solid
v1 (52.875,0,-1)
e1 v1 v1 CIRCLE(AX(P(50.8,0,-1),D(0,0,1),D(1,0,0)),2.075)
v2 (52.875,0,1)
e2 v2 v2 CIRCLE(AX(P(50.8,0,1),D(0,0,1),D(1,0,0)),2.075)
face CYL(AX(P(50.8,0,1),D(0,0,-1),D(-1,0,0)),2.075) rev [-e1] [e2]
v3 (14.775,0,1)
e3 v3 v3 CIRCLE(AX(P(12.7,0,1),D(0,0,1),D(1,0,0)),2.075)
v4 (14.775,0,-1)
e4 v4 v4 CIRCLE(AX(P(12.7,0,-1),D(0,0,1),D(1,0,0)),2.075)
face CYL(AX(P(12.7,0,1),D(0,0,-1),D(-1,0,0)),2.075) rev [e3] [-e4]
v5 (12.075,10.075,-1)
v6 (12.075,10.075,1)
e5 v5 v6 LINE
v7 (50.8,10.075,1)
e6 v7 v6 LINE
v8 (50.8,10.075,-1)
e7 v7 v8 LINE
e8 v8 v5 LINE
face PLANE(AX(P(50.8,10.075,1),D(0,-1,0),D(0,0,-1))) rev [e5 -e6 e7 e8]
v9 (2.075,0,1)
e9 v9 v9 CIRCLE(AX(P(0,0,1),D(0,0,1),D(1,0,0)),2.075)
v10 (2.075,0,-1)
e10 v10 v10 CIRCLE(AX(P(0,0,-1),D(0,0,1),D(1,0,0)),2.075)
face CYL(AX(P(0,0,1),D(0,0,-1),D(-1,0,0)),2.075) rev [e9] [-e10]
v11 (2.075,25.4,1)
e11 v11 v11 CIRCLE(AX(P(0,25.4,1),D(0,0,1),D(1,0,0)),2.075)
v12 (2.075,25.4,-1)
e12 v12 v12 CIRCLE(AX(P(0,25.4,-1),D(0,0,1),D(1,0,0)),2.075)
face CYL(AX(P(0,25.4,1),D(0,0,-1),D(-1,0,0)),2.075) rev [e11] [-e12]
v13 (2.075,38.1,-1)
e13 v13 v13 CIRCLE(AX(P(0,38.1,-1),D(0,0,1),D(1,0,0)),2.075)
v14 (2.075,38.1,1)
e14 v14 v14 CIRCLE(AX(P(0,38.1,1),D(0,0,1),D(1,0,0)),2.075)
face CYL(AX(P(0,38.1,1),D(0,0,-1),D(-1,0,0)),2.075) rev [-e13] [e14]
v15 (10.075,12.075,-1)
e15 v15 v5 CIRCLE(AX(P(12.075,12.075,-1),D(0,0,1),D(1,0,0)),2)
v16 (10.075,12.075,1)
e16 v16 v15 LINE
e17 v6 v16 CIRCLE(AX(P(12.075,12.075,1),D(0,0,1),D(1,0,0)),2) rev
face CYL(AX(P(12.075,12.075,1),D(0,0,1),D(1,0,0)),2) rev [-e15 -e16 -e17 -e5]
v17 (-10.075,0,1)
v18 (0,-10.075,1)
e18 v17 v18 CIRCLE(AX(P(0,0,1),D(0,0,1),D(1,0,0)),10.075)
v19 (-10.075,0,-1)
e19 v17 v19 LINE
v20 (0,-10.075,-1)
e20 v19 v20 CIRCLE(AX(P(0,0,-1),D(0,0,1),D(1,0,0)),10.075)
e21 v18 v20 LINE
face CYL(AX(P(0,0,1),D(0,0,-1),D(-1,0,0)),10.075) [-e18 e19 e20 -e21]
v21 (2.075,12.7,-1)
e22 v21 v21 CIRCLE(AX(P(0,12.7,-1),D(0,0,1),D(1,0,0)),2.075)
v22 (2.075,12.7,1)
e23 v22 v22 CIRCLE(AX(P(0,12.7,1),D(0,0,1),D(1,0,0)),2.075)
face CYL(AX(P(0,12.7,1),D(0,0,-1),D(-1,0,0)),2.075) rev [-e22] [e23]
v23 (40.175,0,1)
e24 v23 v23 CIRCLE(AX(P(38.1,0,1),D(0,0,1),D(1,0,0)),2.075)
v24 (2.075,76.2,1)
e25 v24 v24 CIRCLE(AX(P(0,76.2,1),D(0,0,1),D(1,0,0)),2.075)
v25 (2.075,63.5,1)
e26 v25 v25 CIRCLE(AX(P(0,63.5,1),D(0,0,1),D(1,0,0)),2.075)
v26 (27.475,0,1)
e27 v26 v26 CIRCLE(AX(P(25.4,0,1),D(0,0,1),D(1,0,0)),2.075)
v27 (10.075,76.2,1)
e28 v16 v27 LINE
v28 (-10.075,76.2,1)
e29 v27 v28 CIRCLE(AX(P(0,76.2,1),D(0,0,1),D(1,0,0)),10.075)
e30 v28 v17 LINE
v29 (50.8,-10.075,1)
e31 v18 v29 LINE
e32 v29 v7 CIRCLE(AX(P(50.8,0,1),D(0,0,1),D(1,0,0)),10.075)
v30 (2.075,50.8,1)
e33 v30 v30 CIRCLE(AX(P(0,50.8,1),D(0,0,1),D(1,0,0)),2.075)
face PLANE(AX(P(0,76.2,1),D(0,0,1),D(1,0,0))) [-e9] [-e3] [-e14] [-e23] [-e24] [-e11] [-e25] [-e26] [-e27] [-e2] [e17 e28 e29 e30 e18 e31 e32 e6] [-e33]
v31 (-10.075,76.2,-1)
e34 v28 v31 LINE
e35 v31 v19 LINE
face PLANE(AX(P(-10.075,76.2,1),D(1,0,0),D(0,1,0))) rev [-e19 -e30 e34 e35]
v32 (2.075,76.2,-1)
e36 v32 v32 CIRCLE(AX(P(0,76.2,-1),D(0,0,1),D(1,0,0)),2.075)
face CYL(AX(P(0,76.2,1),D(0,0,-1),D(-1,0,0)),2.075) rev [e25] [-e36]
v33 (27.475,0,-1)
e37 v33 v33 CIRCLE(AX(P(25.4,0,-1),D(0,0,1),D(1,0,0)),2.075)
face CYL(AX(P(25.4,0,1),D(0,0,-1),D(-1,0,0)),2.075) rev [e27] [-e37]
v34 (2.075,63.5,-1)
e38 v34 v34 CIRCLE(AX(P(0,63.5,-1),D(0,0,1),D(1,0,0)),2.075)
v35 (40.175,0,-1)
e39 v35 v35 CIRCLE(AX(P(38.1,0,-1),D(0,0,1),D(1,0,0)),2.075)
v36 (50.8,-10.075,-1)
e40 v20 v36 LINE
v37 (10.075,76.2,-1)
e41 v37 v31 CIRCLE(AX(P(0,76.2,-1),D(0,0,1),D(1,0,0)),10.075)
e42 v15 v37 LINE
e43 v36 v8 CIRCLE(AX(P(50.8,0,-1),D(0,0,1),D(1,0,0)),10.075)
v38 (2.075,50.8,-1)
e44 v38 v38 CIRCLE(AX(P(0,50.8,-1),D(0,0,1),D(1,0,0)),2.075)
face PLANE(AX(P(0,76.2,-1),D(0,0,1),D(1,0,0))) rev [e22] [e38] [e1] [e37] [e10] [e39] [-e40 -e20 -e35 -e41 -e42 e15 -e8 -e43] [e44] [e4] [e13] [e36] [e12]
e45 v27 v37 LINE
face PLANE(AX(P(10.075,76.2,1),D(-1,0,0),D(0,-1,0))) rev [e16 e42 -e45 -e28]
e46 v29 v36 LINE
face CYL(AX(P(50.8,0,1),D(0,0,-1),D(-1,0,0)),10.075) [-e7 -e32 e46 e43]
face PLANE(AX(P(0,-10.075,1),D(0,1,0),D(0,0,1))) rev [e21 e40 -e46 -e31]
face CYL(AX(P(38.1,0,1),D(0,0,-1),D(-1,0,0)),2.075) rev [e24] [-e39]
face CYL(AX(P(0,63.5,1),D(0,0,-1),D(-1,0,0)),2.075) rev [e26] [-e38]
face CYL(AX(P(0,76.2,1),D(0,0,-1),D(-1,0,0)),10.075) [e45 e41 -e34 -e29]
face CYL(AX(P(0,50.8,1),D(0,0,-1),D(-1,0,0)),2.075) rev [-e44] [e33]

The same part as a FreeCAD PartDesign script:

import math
import FreeCAD as App
import Part
import Sketcher
from FreeCAD import Vector


def edges_at(feature, points):
    """Names of the edges that pass closest to the given points."""
    edges = feature.Shape.Edges
    near = lambda p: min(range(len(edges)), key=lambda i: edges[i].distToShape(Part.Vertex(*p))[0])
    return sorted({f"Edge{near(p) + 1}" for p in points})

doc = App.newDocument("Part")
body = doc.addObject("PartDesign::Body", "Body")

# Sketch on XY plane
sketch1 = doc.addObject("Sketcher::SketchObject", "Sketch")
body.addObject(sketch1)
sketch1.AttachmentSupport = (doc.XY_Plane, [""])
sketch1.MapMode = "FlatFace"
sketch1.addGeometry(Part.LineSegment(Vector(-10.1, 76.2, 0), Vector(-10.1, 0, 0)), False)
sketch1.addGeometry(Part.ArcOfCircle(Part.Circle(Vector(0, 0, 0), Vector(0, 0, 1), 10.1), math.radians(-180), math.radians(-90)), False)
sketch1.addGeometry(Part.LineSegment(Vector(0, -10.1, 0), Vector(50.8, -10.1, 0)), False)
sketch1.addGeometry(Part.ArcOfCircle(Part.Circle(Vector(50.8, 0, 0), Vector(0, 0, 1), 10.1), math.radians(-90), math.radians(90)), False)
sketch1.addGeometry(Part.LineSegment(Vector(50.8, 10.1, 0), Vector(10.1, 10.1, 0)), False)
sketch1.addGeometry(Part.LineSegment(Vector(10.1, 10.1, 0), Vector(10.1, 76.2, 0)), False)
sketch1.addGeometry(Part.ArcOfCircle(Part.Circle(Vector(0, 76.2, 0), Vector(0, 0, 1), 10.1), math.radians(0), math.radians(180)), False)
sketch1.addGeometry(Part.Circle(Vector(0, 0, 0), Vector(0, 0, 1), 2.1), False)
sketch1.addGeometry(Part.Circle(Vector(0, 12.7, 0), Vector(0, 0, 1), 2.1), False)
sketch1.addGeometry(Part.Circle(Vector(12.7, 0, 0), Vector(0, 0, 1), 2.1), False)
sketch1.addGeometry(Part.Circle(Vector(0, 25.4, 0), Vector(0, 0, 1), 2.1), False)
sketch1.addGeometry(Part.Circle(Vector(25.4, 0, 0), Vector(0, 0, 1), 2.1), False)
sketch1.addGeometry(Part.Circle(Vector(38.1, 0, 0), Vector(0, 0, 1), 2.1), False)
sketch1.addGeometry(Part.Circle(Vector(50.8, 0, 0), Vector(0, 0, 1), 2.1), False)
sketch1.addGeometry(Part.Circle(Vector(0, 38.1, 0), Vector(0, 0, 1), 2.1), False)
sketch1.addGeometry(Part.Circle(Vector(0, 50.8, 0), Vector(0, 0, 1), 2.1), False)
sketch1.addGeometry(Part.Circle(Vector(0, 63.5, 0), Vector(0, 0, 1), 2.1), False)
sketch1.addGeometry(Part.Circle(Vector(0, 76.2, 0), Vector(0, 0, 1), 2.1), False)
sketch1.addConstraint(Sketcher.Constraint("Tangent", 0, 2, 1, 1))
sketch1.addConstraint(Sketcher.Constraint("Tangent", 1, 2, 2, 1))
sketch1.addConstraint(Sketcher.Constraint("Tangent", 2, 2, 3, 1))
sketch1.addConstraint(Sketcher.Constraint("Tangent", 3, 2, 4, 1))
sketch1.addConstraint(Sketcher.Constraint("Coincident", 4, 2, 5, 1))
sketch1.addConstraint(Sketcher.Constraint("Tangent", 5, 2, 6, 1))
sketch1.addConstraint(Sketcher.Constraint("Tangent", 6, 2, 0, 1))
sketch1.addConstraint(Sketcher.Constraint("Vertical", 0))
sketch1.addConstraint(Sketcher.Constraint("Horizontal", 2))
sketch1.addConstraint(Sketcher.Constraint("Horizontal", 4))
sketch1.addConstraint(Sketcher.Constraint("Vertical", 5))
sketch1.addConstraint(Sketcher.Constraint("Coincident", 1, 3, -1, 1))
sketch1.addConstraint(Sketcher.Constraint("Coincident", 7, 3, -1, 1))
sketch1.addConstraint(Sketcher.Constraint("Coincident", 13, 3, 3, 3))
sketch1.addConstraint(Sketcher.Constraint("Coincident", 17, 3, 6, 3))
sketch1.addConstraint(Sketcher.Constraint("Equal", 1, 3))
sketch1.addConstraint(Sketcher.Constraint("Equal", 3, 6))
sketch1.addConstraint(Sketcher.Constraint("Equal", 7, 8))
sketch1.addConstraint(Sketcher.Constraint("Equal", 8, 9))
sketch1.addConstraint(Sketcher.Constraint("Equal", 9, 10))
sketch1.addConstraint(Sketcher.Constraint("Equal", 10, 11))
sketch1.addConstraint(Sketcher.Constraint("Equal", 11, 12))
sketch1.addConstraint(Sketcher.Constraint("Equal", 12, 13))
sketch1.addConstraint(Sketcher.Constraint("Equal", 13, 14))
sketch1.addConstraint(Sketcher.Constraint("Equal", 14, 15))
sketch1.addConstraint(Sketcher.Constraint("Equal", 15, 16))
sketch1.addConstraint(Sketcher.Constraint("Equal", 16, 17))
sketch1.addConstraint(Sketcher.Constraint("PointOnObject", 8, 3, -2))
sketch1.addConstraint(Sketcher.Constraint("PointOnObject", 9, 3, -1))
sketch1.addConstraint(Sketcher.Constraint("PointOnObject", 10, 3, -2))
sketch1.addConstraint(Sketcher.Constraint("PointOnObject", 11, 3, -1))
sketch1.addConstraint(Sketcher.Constraint("PointOnObject", 12, 3, -1))
sketch1.addConstraint(Sketcher.Constraint("PointOnObject", 14, 3, -2))
sketch1.addConstraint(Sketcher.Constraint("PointOnObject", 15, 3, -2))
sketch1.addConstraint(Sketcher.Constraint("PointOnObject", 16, 3, -2))
sketch1.addConstraint(Sketcher.Constraint("Diameter", 7, 4.15))
sketch1.addConstraint(Sketcher.Constraint("DistanceX", 2, 1, 2, 2, 50.8))
sketch1.addConstraint(Sketcher.Constraint("DistanceY", 0, 2, 0, 1, 76.2))
sketch1.addConstraint(Sketcher.Constraint("Radius", 1, 10.075))
sketch1.addConstraint(Sketcher.Constraint("DistanceY", -1, 1, 8, 3, 12.7))
sketch1.addConstraint(Sketcher.Constraint("DistanceX", -1, 1, 9, 3, 12.7))
sketch1.addConstraint(Sketcher.Constraint("DistanceY", -1, 1, 10, 3, 25.4))
sketch1.addConstraint(Sketcher.Constraint("DistanceX", -1, 1, 11, 3, 25.4))
sketch1.addConstraint(Sketcher.Constraint("DistanceX", -1, 1, 12, 3, 38.1))
sketch1.addConstraint(Sketcher.Constraint("DistanceY", -1, 1, 14, 3, 38.1))
sketch1.addConstraint(Sketcher.Constraint("DistanceY", -1, 1, 15, 3, 50.8))
sketch1.addConstraint(Sketcher.Constraint("DistanceY", -1, 1, 16, 3, 63.5))
pad1 = doc.addObject("PartDesign::Pad", "Pad")
body.addObject(pad1)
pad1.Profile = sketch1
pad1.Length = 2
pad1.Midplane = True
doc.recompute()

fillet = doc.addObject("PartDesign::Fillet", "Fillet")
body.addObject(fillet)
fillet.Base = (pad1, edges_at(pad1, [(10.075, 10.075, 0)]))
fillet.Radius = 2

doc.recompute()
